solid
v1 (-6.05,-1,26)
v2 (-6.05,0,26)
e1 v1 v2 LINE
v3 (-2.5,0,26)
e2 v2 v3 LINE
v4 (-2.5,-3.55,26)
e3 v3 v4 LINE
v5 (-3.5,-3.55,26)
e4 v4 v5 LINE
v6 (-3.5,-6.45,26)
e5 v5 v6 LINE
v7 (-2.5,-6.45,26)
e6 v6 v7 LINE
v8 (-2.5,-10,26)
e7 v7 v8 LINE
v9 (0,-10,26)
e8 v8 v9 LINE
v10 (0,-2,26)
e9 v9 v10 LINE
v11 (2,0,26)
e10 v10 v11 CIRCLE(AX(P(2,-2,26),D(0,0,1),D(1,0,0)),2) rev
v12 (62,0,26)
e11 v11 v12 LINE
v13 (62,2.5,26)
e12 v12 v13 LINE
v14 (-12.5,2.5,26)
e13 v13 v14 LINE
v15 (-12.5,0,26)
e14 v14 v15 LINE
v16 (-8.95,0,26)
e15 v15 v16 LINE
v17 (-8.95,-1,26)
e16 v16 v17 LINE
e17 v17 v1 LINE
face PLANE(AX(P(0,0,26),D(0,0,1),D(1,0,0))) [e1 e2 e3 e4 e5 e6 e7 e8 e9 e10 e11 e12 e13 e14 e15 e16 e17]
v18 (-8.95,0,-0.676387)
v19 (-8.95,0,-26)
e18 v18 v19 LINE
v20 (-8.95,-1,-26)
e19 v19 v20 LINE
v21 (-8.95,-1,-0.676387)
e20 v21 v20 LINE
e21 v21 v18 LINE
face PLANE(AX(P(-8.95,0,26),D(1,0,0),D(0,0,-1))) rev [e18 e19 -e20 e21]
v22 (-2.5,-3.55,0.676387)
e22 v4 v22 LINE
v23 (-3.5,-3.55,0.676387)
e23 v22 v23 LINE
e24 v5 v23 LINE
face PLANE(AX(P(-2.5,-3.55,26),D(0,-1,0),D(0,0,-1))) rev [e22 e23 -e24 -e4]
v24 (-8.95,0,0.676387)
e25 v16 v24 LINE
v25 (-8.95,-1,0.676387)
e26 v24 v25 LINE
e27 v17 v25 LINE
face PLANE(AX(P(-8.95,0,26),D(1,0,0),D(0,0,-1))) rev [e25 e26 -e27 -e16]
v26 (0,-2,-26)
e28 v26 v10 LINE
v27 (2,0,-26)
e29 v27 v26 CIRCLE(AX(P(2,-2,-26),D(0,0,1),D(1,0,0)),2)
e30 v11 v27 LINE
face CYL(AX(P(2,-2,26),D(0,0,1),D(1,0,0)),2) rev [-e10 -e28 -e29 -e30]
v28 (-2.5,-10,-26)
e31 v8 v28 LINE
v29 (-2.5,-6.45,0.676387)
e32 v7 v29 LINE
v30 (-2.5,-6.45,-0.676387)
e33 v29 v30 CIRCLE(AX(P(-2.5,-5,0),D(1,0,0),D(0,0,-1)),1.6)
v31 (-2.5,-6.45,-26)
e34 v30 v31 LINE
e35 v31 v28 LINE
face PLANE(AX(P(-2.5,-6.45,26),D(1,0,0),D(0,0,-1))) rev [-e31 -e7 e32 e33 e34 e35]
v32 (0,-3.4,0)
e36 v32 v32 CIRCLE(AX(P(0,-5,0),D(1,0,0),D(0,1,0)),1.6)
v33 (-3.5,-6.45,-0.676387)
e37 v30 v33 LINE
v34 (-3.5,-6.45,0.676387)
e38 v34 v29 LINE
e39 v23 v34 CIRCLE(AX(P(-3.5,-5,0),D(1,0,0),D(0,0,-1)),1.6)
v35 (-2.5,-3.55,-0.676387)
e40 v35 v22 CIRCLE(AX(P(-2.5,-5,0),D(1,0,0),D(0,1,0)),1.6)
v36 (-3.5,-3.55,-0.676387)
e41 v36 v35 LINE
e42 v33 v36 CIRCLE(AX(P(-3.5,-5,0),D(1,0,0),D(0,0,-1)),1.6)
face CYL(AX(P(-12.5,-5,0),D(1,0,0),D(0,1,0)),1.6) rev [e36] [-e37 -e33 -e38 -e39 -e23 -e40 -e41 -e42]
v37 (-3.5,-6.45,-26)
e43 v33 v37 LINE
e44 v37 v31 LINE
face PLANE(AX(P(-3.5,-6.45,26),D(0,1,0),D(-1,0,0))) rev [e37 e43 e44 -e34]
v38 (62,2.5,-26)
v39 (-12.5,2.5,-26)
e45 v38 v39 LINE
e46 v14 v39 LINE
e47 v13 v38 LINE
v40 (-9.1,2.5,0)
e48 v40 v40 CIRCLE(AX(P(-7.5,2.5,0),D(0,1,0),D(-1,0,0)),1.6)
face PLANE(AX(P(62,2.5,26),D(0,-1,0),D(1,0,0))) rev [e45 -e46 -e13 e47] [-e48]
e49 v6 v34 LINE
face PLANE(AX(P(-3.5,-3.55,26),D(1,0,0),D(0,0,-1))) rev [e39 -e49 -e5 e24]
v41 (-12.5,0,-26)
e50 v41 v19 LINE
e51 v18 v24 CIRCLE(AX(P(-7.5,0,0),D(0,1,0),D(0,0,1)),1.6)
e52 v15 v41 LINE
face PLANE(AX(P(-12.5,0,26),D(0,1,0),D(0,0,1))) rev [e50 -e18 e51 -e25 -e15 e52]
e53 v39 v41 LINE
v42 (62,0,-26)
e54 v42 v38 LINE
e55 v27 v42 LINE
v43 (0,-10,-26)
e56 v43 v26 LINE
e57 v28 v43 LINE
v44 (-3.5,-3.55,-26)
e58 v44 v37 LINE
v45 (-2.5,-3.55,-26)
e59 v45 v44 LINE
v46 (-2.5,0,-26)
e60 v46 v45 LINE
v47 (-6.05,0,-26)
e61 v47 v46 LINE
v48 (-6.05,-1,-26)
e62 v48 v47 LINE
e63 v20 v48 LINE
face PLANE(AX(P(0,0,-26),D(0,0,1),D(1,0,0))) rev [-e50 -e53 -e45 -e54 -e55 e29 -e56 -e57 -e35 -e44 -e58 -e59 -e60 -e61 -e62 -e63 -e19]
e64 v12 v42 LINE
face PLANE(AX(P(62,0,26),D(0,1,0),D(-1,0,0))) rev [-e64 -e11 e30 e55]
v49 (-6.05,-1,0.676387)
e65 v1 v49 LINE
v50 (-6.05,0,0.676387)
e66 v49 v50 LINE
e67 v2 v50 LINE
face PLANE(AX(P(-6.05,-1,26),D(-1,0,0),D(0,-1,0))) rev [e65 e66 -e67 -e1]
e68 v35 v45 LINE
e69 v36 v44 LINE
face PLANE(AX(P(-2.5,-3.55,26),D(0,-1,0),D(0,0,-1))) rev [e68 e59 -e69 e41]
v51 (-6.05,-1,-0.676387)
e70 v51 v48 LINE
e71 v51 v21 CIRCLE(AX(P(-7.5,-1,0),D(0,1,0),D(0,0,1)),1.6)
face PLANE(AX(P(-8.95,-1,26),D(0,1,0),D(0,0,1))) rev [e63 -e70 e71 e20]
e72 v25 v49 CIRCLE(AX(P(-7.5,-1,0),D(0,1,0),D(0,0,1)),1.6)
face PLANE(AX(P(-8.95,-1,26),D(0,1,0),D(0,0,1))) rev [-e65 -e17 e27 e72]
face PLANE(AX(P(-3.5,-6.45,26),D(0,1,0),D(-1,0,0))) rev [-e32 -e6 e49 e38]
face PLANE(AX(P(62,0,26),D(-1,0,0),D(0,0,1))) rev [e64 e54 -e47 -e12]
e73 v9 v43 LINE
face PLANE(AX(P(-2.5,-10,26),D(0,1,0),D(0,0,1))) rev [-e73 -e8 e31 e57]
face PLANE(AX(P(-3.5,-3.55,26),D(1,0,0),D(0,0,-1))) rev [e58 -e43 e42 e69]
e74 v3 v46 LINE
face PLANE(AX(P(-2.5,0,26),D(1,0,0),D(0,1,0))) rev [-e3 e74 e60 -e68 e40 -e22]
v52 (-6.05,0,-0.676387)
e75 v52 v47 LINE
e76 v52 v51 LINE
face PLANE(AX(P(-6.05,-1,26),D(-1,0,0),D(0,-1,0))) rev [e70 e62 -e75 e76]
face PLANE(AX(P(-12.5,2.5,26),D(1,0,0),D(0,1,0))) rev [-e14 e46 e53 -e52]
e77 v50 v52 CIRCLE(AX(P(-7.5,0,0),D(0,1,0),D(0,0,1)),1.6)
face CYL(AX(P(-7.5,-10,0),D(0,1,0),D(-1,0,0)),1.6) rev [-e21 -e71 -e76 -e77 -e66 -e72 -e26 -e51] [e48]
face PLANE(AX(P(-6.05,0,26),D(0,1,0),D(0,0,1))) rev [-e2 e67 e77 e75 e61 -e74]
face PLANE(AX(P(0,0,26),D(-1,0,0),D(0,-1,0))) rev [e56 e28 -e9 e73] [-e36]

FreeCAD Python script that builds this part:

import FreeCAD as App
import Part
import Sketcher

V = App.Vector
Q = App.Units.Quantity


def edges_at(feature, points):
    """Names of the edges that pass closest to the given points."""
    edges = feature.Shape.Edges
    near = lambda p: min(range(len(edges)), key=lambda i: edges[i].distToShape(Part.Vertex(*p))[0])
    return sorted({f"Edge{near(p) + 1}" for p in points})

doc = App.newDocument("Part")
params = doc.addObject("Spreadsheet::Sheet", "Params")
for row, (alias, value) in enumerate([
    ("sketch1_width", "1 mm"),
    ("sketch1_width2", "62 mm"),
    ("sketch1_height", "10 mm"),
    ("sketch1_width3", "74.5 mm"),
    ("sketch1_width4", "2.9 mm"),
    ("pad1_length", "52 mm"),
    ("fillet_radius", "2 mm"),
    ("sketch2_diameter", "3.2 mm"),
    ("sketch3_diameter", "3.2 mm"),
], start=1):
    params.set(f"A{row}", alias)
    params.set(f"B{row}", "=" + value)
    params.setAlias(f"B{row}", alias)

body = doc.addObject("PartDesign::Body", "Body")

sketch1 = doc.addObject("Sketcher::SketchObject", "Sketch")
body.addObject(sketch1)
sketch1.AttachmentSupport = (doc.XY_Plane, [""])
sketch1.MapMode = "FlatFace"
sketch1.addGeometry([
    Part.LineSegment(V(62, 0, 0), V(62, 2.5, 0)),
    Part.LineSegment(V(62, 2.5, 0), V(-12.5, 2.5, 0)),
    Part.LineSegment(V(-12.5, 2.5, 0), V(-12.5, 0, 0)),
    Part.LineSegment(V(-12.5, 0, 0), V(-8.9, 0, 0)),
    Part.LineSegment(V(-8.9, 0, 0), V(-8.9, -1, 0)),
    Part.LineSegment(V(-8.9, -1, 0), V(-6, -1, 0)),
    Part.LineSegment(V(-6, -1, 0), V(-6, 0, 0)),
    Part.LineSegment(V(-6, 0, 0), V(-2.5, 0, 0)),
    Part.LineSegment(V(-2.5, 0, 0), V(-2.5, -3.5, 0)),
    Part.LineSegment(V(-2.5, -3.5, 0), V(-3.5, -3.5, 0)),
    Part.LineSegment(V(-3.5, -3.5, 0), V(-3.5, -6.5, 0)),
    Part.LineSegment(V(-3.5, -6.5, 0), V(-2.5, -6.5, 0)),
    Part.LineSegment(V(-2.5, -6.5, 0), V(-2.5, -10, 0)),
    Part.LineSegment(V(-2.5, -10, 0), V(0, -10, 0)),
    Part.LineSegment(V(0, -10, 0), V(0, 0, 0)),
    Part.LineSegment(V(0, 0, 0), V(62, 0, 0)),
], False)
sketch1.addConstraint([
    Sketcher.Constraint("Coincident", 0, 2, 1, 1),
    Sketcher.Constraint("Coincident", 1, 2, 2, 1),
    Sketcher.Constraint("Coincident", 2, 2, 3, 1),
    Sketcher.Constraint("Coincident", 3, 2, 4, 1),
    Sketcher.Constraint("Coincident", 4, 2, 5, 1),
    Sketcher.Constraint("Coincident", 5, 2, 6, 1),
    Sketcher.Constraint("Coincident", 6, 2, 7, 1),
    Sketcher.Constraint("Coincident", 7, 2, 8, 1),
    Sketcher.Constraint("Coincident", 8, 2, 9, 1),
    Sketcher.Constraint("Coincident", 9, 2, 10, 1),
    Sketcher.Constraint("Coincident", 10, 2, 11, 1),
    Sketcher.Constraint("Coincident", 11, 2, 12, 1),
    Sketcher.Constraint("Coincident", 12, 2, 13, 1),
    Sketcher.Constraint("Coincident", 13, 2, 14, 1),
    Sketcher.Constraint("Coincident", 14, 2, 15, 1),
    Sketcher.Constraint("Coincident", 15, 2, 0, 1),
    Sketcher.Constraint("Vertical", 0),
    Sketcher.Constraint("Horizontal", 1),
    Sketcher.Constraint("Vertical", 2),
    Sketcher.Constraint("Horizontal", 3),
    Sketcher.Constraint("Vertical", 4),
    Sketcher.Constraint("Horizontal", 5),
    Sketcher.Constraint("Vertical", 6),
    Sketcher.Constraint("Horizontal", 7),
    Sketcher.Constraint("Vertical", 8),
    Sketcher.Constraint("Horizontal", 9),
    Sketcher.Constraint("Vertical", 10),
    Sketcher.Constraint("Horizontal", 11),
    Sketcher.Constraint("Vertical", 12),
    Sketcher.Constraint("Horizontal", 13),
    Sketcher.Constraint("Vertical", 14),
    Sketcher.Constraint("Horizontal", 15),
    Sketcher.Constraint("Coincident", 14, 2, -1, 1),
    Sketcher.Constraint("PointOnObject", 2, 2, -1),
    Sketcher.Constraint("PointOnObject", 6, 2, -1),
    Sketcher.Constraint("Vertical", 8, 2, 11, 2),
    Sketcher.Constraint("Equal", 3, 7),
    Sketcher.Constraint("Equal", 13, 0),
    Sketcher.Constraint("Equal", 11, 4),
    Sketcher.Constraint("Equal", 7, 8),
    Sketcher.Constraint("Equal", 5, 10),
    Sketcher.Constraint("Equal", 8, 12),
    Sketcher.Constraint("DistanceX", 9, 2, 9, 1, Q("1 mm")),
    Sketcher.Constraint("DistanceX", 15, 1, 15, 2, Q("62 mm")),
    Sketcher.Constraint("DistanceY", 14, 1, 14, 2, Q("10 mm")),
    Sketcher.Constraint("DistanceX", 1, 2, 1, 1, Q("74.5 mm")),
    Sketcher.Constraint("DistanceX", 5, 1, 5, 2, Q("2.9 mm")),
])
sketch1.setExpression("Constraints[42]", "Params.sketch1_width")
sketch1.setExpression("Constraints[43]", "Params.sketch1_width2")
sketch1.setExpression("Constraints[44]", "Params.sketch1_height")
sketch1.setExpression("Constraints[45]", "Params.sketch1_width3")
sketch1.setExpression("Constraints[46]", "Params.sketch1_width4")
pad1 = doc.addObject("PartDesign::Pad", "Pad")
body.addObject(pad1)
pad1.Profile = sketch1
pad1.setExpression("Length", "Params.pad1_length")
pad1.Midplane = True
doc.recompute()

fillet = doc.addObject("PartDesign::Fillet", "Fillet")
body.addObject(fillet)
fillet.Base = (pad1, edges_at(pad1, [(0, 0, 0)]))
fillet.setExpression("Radius", "Params.fillet_radius")

sketch2 = doc.addObject("Sketcher::SketchObject", "Sketch001")
body.addObject(sketch2)
sketch2.AttachmentSupport = (doc.YZ_Plane, [""])
sketch2.MapMode = "FlatFace"
sketch2.addGeometry(Part.Circle(V(-5, 0, 0), V(0, 0, 1), 1.6), False)
sketch2.addConstraint([
    Sketcher.Constraint("PointOnObject", 0, 3, -1),
    Sketcher.Constraint("Diameter", 0, Q("3.2 mm")),
    Sketcher.Constraint("DistanceX", 0, 3, -1, 1, Q("5 mm")),
])
sketch2.setExpression("Constraints[1]", "Params.sketch2_diameter")
pocket1 = doc.addObject("PartDesign::Pocket", "Pocket")
body.addObject(pocket1)
pocket1.Profile = sketch2
pocket1.Type = "ThroughAll"

sketch3 = doc.addObject("Sketcher::SketchObject", "Sketch002")
body.addObject(sketch3)
sketch3.AttachmentSupport = (doc.XZ_Plane, [""])
sketch3.MapMode = "FlatFace"
sketch3.AttachmentOffset = App.Placement(V(0, 0, -2.5), App.Rotation())
sketch3.addGeometry(Part.Circle(V(-7.5, 0, 0), V(0, 0, 1), 1.6), False)
sketch3.addConstraint([
    Sketcher.Constraint("PointOnObject", 0, 3, -1),
    Sketcher.Constraint("Diameter", 0, Q("3.2 mm")),
    Sketcher.Constraint("DistanceX", 0, 3, -1, 1, Q("7.5 mm")),
])
sketch3.setExpression("Constraints[1]", "Params.sketch3_diameter")
pocket2 = doc.addObject("PartDesign::Pocket", "Pocket001")
body.addObject(pocket2)
pocket2.Profile = sketch3
pocket2.Type = "ThroughAll"
pocket2.Reversed = True

doc.recompute()
